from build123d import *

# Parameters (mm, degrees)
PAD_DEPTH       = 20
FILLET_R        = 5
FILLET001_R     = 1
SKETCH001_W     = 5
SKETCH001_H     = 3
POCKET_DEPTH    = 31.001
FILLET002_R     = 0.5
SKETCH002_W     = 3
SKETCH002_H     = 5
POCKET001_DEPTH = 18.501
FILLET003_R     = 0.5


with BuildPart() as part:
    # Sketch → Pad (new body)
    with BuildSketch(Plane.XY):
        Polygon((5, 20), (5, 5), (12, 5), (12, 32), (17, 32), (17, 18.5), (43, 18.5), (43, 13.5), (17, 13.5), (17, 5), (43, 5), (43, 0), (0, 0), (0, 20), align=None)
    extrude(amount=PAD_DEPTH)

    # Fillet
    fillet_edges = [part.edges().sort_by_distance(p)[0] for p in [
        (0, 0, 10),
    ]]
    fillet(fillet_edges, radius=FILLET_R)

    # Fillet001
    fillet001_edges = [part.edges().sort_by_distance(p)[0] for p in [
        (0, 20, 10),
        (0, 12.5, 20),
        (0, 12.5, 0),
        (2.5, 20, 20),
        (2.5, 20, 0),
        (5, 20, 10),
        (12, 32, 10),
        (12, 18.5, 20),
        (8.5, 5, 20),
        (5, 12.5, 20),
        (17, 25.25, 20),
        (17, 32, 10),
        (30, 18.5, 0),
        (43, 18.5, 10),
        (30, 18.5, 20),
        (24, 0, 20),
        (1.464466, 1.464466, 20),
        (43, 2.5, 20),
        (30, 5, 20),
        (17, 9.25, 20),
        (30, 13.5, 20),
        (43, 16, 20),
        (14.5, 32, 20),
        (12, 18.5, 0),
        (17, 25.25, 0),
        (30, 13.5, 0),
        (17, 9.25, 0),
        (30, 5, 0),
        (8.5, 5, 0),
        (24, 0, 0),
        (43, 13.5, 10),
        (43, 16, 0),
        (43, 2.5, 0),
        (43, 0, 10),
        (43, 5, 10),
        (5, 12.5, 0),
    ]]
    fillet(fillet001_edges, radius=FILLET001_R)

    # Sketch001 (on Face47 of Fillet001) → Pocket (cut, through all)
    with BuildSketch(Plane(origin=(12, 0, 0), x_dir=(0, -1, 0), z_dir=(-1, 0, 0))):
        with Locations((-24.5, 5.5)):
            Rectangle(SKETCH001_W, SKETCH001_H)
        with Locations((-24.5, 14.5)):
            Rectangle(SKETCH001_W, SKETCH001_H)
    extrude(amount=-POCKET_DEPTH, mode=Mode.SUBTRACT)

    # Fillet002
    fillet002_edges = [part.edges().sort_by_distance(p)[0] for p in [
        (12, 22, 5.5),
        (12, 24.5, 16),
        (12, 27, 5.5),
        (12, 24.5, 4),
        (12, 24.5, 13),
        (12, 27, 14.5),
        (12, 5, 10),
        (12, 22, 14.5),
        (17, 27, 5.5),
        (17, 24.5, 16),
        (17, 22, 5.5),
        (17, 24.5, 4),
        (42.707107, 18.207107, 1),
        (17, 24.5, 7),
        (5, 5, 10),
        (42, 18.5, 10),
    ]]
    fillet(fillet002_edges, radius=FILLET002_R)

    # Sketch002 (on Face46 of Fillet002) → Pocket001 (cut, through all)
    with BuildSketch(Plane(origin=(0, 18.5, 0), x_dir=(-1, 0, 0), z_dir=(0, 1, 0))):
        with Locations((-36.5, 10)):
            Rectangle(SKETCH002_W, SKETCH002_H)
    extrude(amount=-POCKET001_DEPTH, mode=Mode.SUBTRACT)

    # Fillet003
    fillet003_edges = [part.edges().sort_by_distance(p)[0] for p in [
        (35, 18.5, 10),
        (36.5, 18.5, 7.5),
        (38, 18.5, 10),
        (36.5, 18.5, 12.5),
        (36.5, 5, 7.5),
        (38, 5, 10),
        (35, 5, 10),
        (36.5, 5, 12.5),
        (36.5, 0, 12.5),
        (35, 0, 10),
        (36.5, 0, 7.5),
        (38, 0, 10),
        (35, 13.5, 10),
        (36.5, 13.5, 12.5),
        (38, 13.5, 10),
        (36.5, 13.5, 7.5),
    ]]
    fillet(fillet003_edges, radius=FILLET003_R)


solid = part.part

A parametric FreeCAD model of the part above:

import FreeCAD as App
import Part
import Sketcher


def edges_at(feature, points):
    """Names of the edges that pass closest to the given points."""
    edges = feature.Shape.Edges
    near = lambda p: min(range(len(edges)), key=lambda i: edges[i].distToShape(Part.Vertex(*p))[0])
    return sorted({f"Edge{near(p) + 1}" for p in points})

doc = App.newDocument("Part")
params = doc.addObject("Spreadsheet::Sheet", "Params")
for row, (alias, value) in enumerate([
    ("sketch1_width", "5 mm"),
    ("sketch1_width2", "43 mm"),
    ("sketch1_width3", "26 mm"),
    ("sketch1_height", "15 mm"),
    ("sketch1_height2", "27 mm"),
    ("pad1_length", "20 mm"),
    ("fillet_radius", "5 mm"),
    ("fillet2_radius", "1 mm"),
    ("sketch2_width", "5 mm"),
    ("sketch2_height", "3 mm"),
    ("fillet3_radius", "0.5 mm"),
    ("sketch3_width", "3 mm"),
    ("sketch3_height", "5 mm"),
    ("fillet4_radius", "0.5 mm"),
], start=1):
    params.set(f"A{row}", alias)
    params.set(f"B{row}", "=" + value)
    params.setAlias(f"B{row}", alias)

body = doc.addObject("PartDesign::Body", "Body")

sketch1 = body.newObject("Sketcher::SketchObject", "Sketch")
sketch1.AttachmentSupport = (doc.getObject("XY_Plane"), [""])
sketch1.MapMode = "FlatFace"
sketch1.addGeometry([
    Part.LineSegment(App.Vector(5, 5, 0), App.Vector(5, 20, 0)),
    Part.LineSegment(App.Vector(5, 20, 0), App.Vector(0, 20, 0)),
    Part.LineSegment(App.Vector(0, 20, 0), App.Vector(0, 0, 0)),
    Part.LineSegment(App.Vector(0, 0, 0), App.Vector(43, 0, 0)),
    Part.LineSegment(App.Vector(43, 0, 0), App.Vector(43, 5, 0)),
    Part.LineSegment(App.Vector(43, 5, 0), App.Vector(17, 5, 0)),
    Part.LineSegment(App.Vector(17, 5, 0), App.Vector(17, 14, 0)),
    Part.LineSegment(App.Vector(17, 14, 0), App.Vector(43, 14, 0)),
    Part.LineSegment(App.Vector(43, 14, 0), App.Vector(43, 18, 0)),
    Part.LineSegment(App.Vector(43, 18, 0), App.Vector(17, 18, 0)),
    Part.LineSegment(App.Vector(17, 18, 0), App.Vector(17, 32, 0)),
    Part.LineSegment(App.Vector(17, 32, 0), App.Vector(12, 32, 0)),
    Part.LineSegment(App.Vector(12, 32, 0), App.Vector(12, 5, 0)),
    Part.LineSegment(App.Vector(12, 5, 0), App.Vector(5, 5, 0)),
], False)
sketch1.addConstraint([
    Sketcher.Constraint("Coincident", 0, 2, 1, 1),
    Sketcher.Constraint("Coincident", 1, 2, 2, 1),
    Sketcher.Constraint("Coincident", 2, 2, 3, 1),
    Sketcher.Constraint("Coincident", 3, 2, 4, 1),
    Sketcher.Constraint("Coincident", 4, 2, 5, 1),
    Sketcher.Constraint("Coincident", 5, 2, 6, 1),
    Sketcher.Constraint("Coincident", 6, 2, 7, 1),
    Sketcher.Constraint("Coincident", 7, 2, 8, 1),
    Sketcher.Constraint("Coincident", 8, 2, 9, 1),
    Sketcher.Constraint("Coincident", 9, 2, 10, 1),
    Sketcher.Constraint("Coincident", 10, 2, 11, 1),
    Sketcher.Constraint("Coincident", 11, 2, 12, 1),
    Sketcher.Constraint("Coincident", 12, 2, 13, 1),
    Sketcher.Constraint("Coincident", 13, 2, 0, 1),
    Sketcher.Constraint("Vertical", 0),
    Sketcher.Constraint("Horizontal", 1),
    Sketcher.Constraint("Vertical", 2),
    Sketcher.Constraint("Horizontal", 3),
    Sketcher.Constraint("Vertical", 4),
    Sketcher.Constraint("Horizontal", 5),
    Sketcher.Constraint("Vertical", 6),
    Sketcher.Constraint("Horizontal", 7),
    Sketcher.Constraint("Vertical", 8),
    Sketcher.Constraint("Horizontal", 9),
    Sketcher.Constraint("Vertical", 10),
    Sketcher.Constraint("Horizontal", 11),
    Sketcher.Constraint("Vertical", 12),
    Sketcher.Constraint("Horizontal", 13),
    Sketcher.Constraint("Coincident", 2, 2, -1, 1),
    Sketcher.Constraint("Horizontal", 5, 2, 12, 2),
    Sketcher.Constraint("Vertical", 4, 2, 7, 2),
    Sketcher.Constraint("Vertical", 6, 2, 9, 2),
    Sketcher.Constraint("Equal", 1, 11),
    Sketcher.Constraint("Equal", 11, 4),
    Sketcher.Constraint("Equal", 4, 8),
    Sketcher.Constraint("DistanceX", 1, 2, 1, 1, 5.0),
    Sketcher.Constraint("DistanceX", 3, 1, 3, 2, 43.0),
    Sketcher.Constraint("DistanceX", 5, 2, 5, 1, 26.0),
    Sketcher.Constraint("DistanceY", 0, 1, 0, 2, 15.0),
    Sketcher.Constraint("DistanceY", 12, 2, 12, 1, 27.0),
    Sketcher.Constraint("DistanceY", 6, 1, 6, 2, 8.5),
])
sketch1.setExpression("Constraints[35]", "Params.sketch1_width")
sketch1.setExpression("Constraints[36]", "Params.sketch1_width2")
sketch1.setExpression("Constraints[37]", "Params.sketch1_width3")
sketch1.setExpression("Constraints[38]", "Params.sketch1_height")
sketch1.setExpression("Constraints[39]", "Params.sketch1_height2")
pad1 = body.newObject("PartDesign::Pad", "Pad")
pad1.Profile = sketch1
pad1.setExpression("Length", "Params.pad1_length")
doc.recompute()

fillet = body.newObject("PartDesign::Fillet", "Fillet")
fillet.Base = (pad1, edges_at(pad1, [(0, 0, 10)]))
fillet.setExpression("Radius", "Params.fillet_radius")
doc.recompute()

fillet2 = body.newObject("PartDesign::Fillet", "Fillet001")
fillet2.Base = (fillet, edges_at(fillet, [
    (0, 20, 10),
    (0, 12.5, 20),
    (0, 12.5, 0),
    (2.5, 20, 20),
    (2.5, 20, 0),
    (5, 20, 10),
    (12, 32, 10),
    (12, 18.5, 20),
    (8.5, 5, 20),
    (5, 12.5, 20),
    (17, 25.25, 20),
    (17, 32, 10),
    (30, 18.5, 0),
    (43, 18.5, 10),
    (30, 18.5, 20),
    (24, 0, 20),
    (1.464, 1.464, 20),
    (43, 2.5, 20),
    (30, 5, 20),
    (17, 9.25, 20),
    (30, 13.5, 20),
    (43, 16, 20),
    (14.5, 32, 20),
    (12, 18.5, 0),
    (17, 25.25, 0),
    (30, 13.5, 0),
    (17, 9.25, 0),
    (30, 5, 0),
    (8.5, 5, 0),
    (24, 0, 0),
    (43, 13.5, 10),
    (43, 16, 0),
    (43, 2.5, 0),
    (43, 0, 10),
    (43, 5, 10),
    (5, 12.5, 0),
]))
fillet2.setExpression("Radius", "Params.fillet2_radius")

sketch2 = body.newObject("Sketcher::SketchObject", "Sketch001")
sketch2.AttachmentSupport = (doc.getObject("YZ_Plane"), [""])
sketch2.MapMode = "FlatFace"
sketch2.AttachmentOffset = App.Placement(App.Vector(0, 0, 12), App.Rotation())
sketch2.addGeometry([
    Part.LineSegment(App.Vector(27, 7, 0), App.Vector(27, 4, 0)),
    Part.LineSegment(App.Vector(27, 4, 0), App.Vector(22, 4, 0)),
    Part.LineSegment(App.Vector(22, 4, 0), App.Vector(22, 7, 0)),
    Part.LineSegment(App.Vector(22, 7, 0), App.Vector(27, 7, 0)),
    Part.LineSegment(App.Vector(27, 16, 0), App.Vector(27, 13, 0)),
    Part.LineSegment(App.Vector(27, 13, 0), App.Vector(22, 13, 0)),
    Part.LineSegment(App.Vector(22, 13, 0), App.Vector(22, 16, 0)),
    Part.LineSegment(App.Vector(22, 16, 0), App.Vector(27, 16, 0)),
], False)
sketch2.addConstraint([
    Sketcher.Constraint("Coincident", 0, 2, 1, 1),
    Sketcher.Constraint("Coincident", 1, 2, 2, 1),
    Sketcher.Constraint("Coincident", 2, 2, 3, 1),
    Sketcher.Constraint("Coincident", 3, 2, 0, 1),
    Sketcher.Constraint("Coincident", 4, 2, 5, 1),
    Sketcher.Constraint("Coincident", 5, 2, 6, 1),
    Sketcher.Constraint("Coincident", 6, 2, 7, 1),
    Sketcher.Constraint("Coincident", 7, 2, 4, 1),
    Sketcher.Constraint("Vertical", 0),
    Sketcher.Constraint("Horizontal", 1),
    Sketcher.Constraint("Vertical", 2),
    Sketcher.Constraint("Horizontal", 3),
    Sketcher.Constraint("Vertical", 4),
    Sketcher.Constraint("Horizontal", 5),
    Sketcher.Constraint("Vertical", 6),
    Sketcher.Constraint("Horizontal", 7),
    Sketcher.Constraint("Vertical", 3, 2, 4, 2),
    Sketcher.Constraint("Vertical", 2, 2, 5, 2),
    Sketcher.Constraint("Equal", 2, 4),
    Sketcher.Constraint("DistanceX", 1, 2, 1, 1, 5.0),
    Sketcher.Constraint("DistanceY", 0, 2, 0, 1, 3.0),
    Sketcher.Constraint("DistanceX", -1, 1, 0, 2, 27.0),
    Sketcher.Constraint("DistanceY", -1, 1, 0, 2, 4.0),
    Sketcher.Constraint("DistanceY", -1, 1, 4, 2, 13.0),
])
sketch2.setExpression("Constraints[19]", "Params.sketch2_width")
sketch2.setExpression("Constraints[20]", "Params.sketch2_height")
pocket1 = body.newObject("PartDesign::Pocket", "Pocket")
pocket1.Profile = sketch2
pocket1.Type = "ThroughAll"
pocket1.Reversed = True
doc.recompute()

fillet3 = body.newObject("PartDesign::Fillet", "Fillet002")
fillet3.Base = (pocket1, edges_at(pocket1, [
    (12, 22, 5.5),
    (12, 24.5, 16),
    (12, 27, 5.5),
    (12, 24.5, 4),
    (12, 24.5, 13),
    (12, 27, 14.5),
    (12, 5, 10),
    (12, 22, 14.5),
    (17, 27, 5.5),
    (17, 24.5, 16),
    (17, 22, 5.5),
    (17, 24.5, 4),
    (42.707, 18.207, 1),
    (17, 24.5, 7),
    (5, 5, 10),
    (42, 18.5, 10),
]))
fillet3.setExpression("Radius", "Params.fillet3_radius")

sketch3 = body.newObject("Sketcher::SketchObject", "Sketch002")
sketch3.AttachmentSupport = (doc.getObject("XZ_Plane"), [""])
sketch3.MapMode = "FlatFace"
sketch3.AttachmentOffset = App.Placement(App.Vector(0, 0, -18.5), App.Rotation())
sketch3.addGeometry([
    Part.LineSegment(App.Vector(38, 12.5, 0), App.Vector(38, 7.5, 0)),
    Part.LineSegment(App.Vector(38, 7.5, 0), App.Vector(35, 7.5, 0)),
    Part.LineSegment(App.Vector(35, 7.5, 0), App.Vector(35, 12.5, 0)),
    Part.LineSegment(App.Vector(35, 12.5, 0), App.Vector(38, 12.5, 0)),
], False)
sketch3.addConstraint([
    Sketcher.Constraint("Coincident", 0, 2, 1, 1),
    Sketcher.Constraint("Coincident", 1, 2, 2, 1),
    Sketcher.Constraint("Coincident", 2, 2, 3, 1),
    Sketcher.Constraint("Coincident", 3, 2, 0, 1),
    Sketcher.Constraint("Vertical", 0),
    Sketcher.Constraint("Horizontal", 1),
    Sketcher.Constraint("Vertical", 2),
    Sketcher.Constraint("Horizontal", 3),
    Sketcher.Constraint("DistanceX", 1, 2, 1, 1, 3.0),
    Sketcher.Constraint("DistanceY", 0, 2, 0, 1, 5.0),
    Sketcher.Constraint("DistanceX", -1, 1, 0, 2, 38.0),
    Sketcher.Constraint("DistanceY", -1, 1, 0, 2, 7.5),
])
sketch3.setExpression("Constraints[8]", "Params.sketch3_width")
sketch3.setExpression("Constraints[9]", "Params.sketch3_height")
pocket2 = body.newObject("PartDesign::Pocket", "Pocket001")
pocket2.Profile = sketch3
pocket2.Type = "ThroughAll"
pocket2.Reversed = True
doc.recompute()

fillet4 = body.newObject("PartDesign::Fillet", "Fillet003")
fillet4.Base = (pocket2, edges_at(pocket2, [
    (35, 18.5, 10),
    (36.5, 18.5, 7.5),
    (38, 18.5, 10),
    (36.5, 18.5, 12.5),
    (36.5, 5, 7.5),
    (38, 5, 10),
    (35, 5, 10),
    (36.5, 5, 12.5),
    (36.5, 0, 12.5),
    (35, 0, 10),
    (36.5, 0, 7.5),
    (38, 0, 10),
    (35, 13.5, 10),
    (36.5, 13.5, 12.5),
    (38, 13.5, 10),
    (36.5, 13.5, 7.5),
]))
fillet4.setExpression("Radius", "Params.fillet4_radius")

doc.recompute()
